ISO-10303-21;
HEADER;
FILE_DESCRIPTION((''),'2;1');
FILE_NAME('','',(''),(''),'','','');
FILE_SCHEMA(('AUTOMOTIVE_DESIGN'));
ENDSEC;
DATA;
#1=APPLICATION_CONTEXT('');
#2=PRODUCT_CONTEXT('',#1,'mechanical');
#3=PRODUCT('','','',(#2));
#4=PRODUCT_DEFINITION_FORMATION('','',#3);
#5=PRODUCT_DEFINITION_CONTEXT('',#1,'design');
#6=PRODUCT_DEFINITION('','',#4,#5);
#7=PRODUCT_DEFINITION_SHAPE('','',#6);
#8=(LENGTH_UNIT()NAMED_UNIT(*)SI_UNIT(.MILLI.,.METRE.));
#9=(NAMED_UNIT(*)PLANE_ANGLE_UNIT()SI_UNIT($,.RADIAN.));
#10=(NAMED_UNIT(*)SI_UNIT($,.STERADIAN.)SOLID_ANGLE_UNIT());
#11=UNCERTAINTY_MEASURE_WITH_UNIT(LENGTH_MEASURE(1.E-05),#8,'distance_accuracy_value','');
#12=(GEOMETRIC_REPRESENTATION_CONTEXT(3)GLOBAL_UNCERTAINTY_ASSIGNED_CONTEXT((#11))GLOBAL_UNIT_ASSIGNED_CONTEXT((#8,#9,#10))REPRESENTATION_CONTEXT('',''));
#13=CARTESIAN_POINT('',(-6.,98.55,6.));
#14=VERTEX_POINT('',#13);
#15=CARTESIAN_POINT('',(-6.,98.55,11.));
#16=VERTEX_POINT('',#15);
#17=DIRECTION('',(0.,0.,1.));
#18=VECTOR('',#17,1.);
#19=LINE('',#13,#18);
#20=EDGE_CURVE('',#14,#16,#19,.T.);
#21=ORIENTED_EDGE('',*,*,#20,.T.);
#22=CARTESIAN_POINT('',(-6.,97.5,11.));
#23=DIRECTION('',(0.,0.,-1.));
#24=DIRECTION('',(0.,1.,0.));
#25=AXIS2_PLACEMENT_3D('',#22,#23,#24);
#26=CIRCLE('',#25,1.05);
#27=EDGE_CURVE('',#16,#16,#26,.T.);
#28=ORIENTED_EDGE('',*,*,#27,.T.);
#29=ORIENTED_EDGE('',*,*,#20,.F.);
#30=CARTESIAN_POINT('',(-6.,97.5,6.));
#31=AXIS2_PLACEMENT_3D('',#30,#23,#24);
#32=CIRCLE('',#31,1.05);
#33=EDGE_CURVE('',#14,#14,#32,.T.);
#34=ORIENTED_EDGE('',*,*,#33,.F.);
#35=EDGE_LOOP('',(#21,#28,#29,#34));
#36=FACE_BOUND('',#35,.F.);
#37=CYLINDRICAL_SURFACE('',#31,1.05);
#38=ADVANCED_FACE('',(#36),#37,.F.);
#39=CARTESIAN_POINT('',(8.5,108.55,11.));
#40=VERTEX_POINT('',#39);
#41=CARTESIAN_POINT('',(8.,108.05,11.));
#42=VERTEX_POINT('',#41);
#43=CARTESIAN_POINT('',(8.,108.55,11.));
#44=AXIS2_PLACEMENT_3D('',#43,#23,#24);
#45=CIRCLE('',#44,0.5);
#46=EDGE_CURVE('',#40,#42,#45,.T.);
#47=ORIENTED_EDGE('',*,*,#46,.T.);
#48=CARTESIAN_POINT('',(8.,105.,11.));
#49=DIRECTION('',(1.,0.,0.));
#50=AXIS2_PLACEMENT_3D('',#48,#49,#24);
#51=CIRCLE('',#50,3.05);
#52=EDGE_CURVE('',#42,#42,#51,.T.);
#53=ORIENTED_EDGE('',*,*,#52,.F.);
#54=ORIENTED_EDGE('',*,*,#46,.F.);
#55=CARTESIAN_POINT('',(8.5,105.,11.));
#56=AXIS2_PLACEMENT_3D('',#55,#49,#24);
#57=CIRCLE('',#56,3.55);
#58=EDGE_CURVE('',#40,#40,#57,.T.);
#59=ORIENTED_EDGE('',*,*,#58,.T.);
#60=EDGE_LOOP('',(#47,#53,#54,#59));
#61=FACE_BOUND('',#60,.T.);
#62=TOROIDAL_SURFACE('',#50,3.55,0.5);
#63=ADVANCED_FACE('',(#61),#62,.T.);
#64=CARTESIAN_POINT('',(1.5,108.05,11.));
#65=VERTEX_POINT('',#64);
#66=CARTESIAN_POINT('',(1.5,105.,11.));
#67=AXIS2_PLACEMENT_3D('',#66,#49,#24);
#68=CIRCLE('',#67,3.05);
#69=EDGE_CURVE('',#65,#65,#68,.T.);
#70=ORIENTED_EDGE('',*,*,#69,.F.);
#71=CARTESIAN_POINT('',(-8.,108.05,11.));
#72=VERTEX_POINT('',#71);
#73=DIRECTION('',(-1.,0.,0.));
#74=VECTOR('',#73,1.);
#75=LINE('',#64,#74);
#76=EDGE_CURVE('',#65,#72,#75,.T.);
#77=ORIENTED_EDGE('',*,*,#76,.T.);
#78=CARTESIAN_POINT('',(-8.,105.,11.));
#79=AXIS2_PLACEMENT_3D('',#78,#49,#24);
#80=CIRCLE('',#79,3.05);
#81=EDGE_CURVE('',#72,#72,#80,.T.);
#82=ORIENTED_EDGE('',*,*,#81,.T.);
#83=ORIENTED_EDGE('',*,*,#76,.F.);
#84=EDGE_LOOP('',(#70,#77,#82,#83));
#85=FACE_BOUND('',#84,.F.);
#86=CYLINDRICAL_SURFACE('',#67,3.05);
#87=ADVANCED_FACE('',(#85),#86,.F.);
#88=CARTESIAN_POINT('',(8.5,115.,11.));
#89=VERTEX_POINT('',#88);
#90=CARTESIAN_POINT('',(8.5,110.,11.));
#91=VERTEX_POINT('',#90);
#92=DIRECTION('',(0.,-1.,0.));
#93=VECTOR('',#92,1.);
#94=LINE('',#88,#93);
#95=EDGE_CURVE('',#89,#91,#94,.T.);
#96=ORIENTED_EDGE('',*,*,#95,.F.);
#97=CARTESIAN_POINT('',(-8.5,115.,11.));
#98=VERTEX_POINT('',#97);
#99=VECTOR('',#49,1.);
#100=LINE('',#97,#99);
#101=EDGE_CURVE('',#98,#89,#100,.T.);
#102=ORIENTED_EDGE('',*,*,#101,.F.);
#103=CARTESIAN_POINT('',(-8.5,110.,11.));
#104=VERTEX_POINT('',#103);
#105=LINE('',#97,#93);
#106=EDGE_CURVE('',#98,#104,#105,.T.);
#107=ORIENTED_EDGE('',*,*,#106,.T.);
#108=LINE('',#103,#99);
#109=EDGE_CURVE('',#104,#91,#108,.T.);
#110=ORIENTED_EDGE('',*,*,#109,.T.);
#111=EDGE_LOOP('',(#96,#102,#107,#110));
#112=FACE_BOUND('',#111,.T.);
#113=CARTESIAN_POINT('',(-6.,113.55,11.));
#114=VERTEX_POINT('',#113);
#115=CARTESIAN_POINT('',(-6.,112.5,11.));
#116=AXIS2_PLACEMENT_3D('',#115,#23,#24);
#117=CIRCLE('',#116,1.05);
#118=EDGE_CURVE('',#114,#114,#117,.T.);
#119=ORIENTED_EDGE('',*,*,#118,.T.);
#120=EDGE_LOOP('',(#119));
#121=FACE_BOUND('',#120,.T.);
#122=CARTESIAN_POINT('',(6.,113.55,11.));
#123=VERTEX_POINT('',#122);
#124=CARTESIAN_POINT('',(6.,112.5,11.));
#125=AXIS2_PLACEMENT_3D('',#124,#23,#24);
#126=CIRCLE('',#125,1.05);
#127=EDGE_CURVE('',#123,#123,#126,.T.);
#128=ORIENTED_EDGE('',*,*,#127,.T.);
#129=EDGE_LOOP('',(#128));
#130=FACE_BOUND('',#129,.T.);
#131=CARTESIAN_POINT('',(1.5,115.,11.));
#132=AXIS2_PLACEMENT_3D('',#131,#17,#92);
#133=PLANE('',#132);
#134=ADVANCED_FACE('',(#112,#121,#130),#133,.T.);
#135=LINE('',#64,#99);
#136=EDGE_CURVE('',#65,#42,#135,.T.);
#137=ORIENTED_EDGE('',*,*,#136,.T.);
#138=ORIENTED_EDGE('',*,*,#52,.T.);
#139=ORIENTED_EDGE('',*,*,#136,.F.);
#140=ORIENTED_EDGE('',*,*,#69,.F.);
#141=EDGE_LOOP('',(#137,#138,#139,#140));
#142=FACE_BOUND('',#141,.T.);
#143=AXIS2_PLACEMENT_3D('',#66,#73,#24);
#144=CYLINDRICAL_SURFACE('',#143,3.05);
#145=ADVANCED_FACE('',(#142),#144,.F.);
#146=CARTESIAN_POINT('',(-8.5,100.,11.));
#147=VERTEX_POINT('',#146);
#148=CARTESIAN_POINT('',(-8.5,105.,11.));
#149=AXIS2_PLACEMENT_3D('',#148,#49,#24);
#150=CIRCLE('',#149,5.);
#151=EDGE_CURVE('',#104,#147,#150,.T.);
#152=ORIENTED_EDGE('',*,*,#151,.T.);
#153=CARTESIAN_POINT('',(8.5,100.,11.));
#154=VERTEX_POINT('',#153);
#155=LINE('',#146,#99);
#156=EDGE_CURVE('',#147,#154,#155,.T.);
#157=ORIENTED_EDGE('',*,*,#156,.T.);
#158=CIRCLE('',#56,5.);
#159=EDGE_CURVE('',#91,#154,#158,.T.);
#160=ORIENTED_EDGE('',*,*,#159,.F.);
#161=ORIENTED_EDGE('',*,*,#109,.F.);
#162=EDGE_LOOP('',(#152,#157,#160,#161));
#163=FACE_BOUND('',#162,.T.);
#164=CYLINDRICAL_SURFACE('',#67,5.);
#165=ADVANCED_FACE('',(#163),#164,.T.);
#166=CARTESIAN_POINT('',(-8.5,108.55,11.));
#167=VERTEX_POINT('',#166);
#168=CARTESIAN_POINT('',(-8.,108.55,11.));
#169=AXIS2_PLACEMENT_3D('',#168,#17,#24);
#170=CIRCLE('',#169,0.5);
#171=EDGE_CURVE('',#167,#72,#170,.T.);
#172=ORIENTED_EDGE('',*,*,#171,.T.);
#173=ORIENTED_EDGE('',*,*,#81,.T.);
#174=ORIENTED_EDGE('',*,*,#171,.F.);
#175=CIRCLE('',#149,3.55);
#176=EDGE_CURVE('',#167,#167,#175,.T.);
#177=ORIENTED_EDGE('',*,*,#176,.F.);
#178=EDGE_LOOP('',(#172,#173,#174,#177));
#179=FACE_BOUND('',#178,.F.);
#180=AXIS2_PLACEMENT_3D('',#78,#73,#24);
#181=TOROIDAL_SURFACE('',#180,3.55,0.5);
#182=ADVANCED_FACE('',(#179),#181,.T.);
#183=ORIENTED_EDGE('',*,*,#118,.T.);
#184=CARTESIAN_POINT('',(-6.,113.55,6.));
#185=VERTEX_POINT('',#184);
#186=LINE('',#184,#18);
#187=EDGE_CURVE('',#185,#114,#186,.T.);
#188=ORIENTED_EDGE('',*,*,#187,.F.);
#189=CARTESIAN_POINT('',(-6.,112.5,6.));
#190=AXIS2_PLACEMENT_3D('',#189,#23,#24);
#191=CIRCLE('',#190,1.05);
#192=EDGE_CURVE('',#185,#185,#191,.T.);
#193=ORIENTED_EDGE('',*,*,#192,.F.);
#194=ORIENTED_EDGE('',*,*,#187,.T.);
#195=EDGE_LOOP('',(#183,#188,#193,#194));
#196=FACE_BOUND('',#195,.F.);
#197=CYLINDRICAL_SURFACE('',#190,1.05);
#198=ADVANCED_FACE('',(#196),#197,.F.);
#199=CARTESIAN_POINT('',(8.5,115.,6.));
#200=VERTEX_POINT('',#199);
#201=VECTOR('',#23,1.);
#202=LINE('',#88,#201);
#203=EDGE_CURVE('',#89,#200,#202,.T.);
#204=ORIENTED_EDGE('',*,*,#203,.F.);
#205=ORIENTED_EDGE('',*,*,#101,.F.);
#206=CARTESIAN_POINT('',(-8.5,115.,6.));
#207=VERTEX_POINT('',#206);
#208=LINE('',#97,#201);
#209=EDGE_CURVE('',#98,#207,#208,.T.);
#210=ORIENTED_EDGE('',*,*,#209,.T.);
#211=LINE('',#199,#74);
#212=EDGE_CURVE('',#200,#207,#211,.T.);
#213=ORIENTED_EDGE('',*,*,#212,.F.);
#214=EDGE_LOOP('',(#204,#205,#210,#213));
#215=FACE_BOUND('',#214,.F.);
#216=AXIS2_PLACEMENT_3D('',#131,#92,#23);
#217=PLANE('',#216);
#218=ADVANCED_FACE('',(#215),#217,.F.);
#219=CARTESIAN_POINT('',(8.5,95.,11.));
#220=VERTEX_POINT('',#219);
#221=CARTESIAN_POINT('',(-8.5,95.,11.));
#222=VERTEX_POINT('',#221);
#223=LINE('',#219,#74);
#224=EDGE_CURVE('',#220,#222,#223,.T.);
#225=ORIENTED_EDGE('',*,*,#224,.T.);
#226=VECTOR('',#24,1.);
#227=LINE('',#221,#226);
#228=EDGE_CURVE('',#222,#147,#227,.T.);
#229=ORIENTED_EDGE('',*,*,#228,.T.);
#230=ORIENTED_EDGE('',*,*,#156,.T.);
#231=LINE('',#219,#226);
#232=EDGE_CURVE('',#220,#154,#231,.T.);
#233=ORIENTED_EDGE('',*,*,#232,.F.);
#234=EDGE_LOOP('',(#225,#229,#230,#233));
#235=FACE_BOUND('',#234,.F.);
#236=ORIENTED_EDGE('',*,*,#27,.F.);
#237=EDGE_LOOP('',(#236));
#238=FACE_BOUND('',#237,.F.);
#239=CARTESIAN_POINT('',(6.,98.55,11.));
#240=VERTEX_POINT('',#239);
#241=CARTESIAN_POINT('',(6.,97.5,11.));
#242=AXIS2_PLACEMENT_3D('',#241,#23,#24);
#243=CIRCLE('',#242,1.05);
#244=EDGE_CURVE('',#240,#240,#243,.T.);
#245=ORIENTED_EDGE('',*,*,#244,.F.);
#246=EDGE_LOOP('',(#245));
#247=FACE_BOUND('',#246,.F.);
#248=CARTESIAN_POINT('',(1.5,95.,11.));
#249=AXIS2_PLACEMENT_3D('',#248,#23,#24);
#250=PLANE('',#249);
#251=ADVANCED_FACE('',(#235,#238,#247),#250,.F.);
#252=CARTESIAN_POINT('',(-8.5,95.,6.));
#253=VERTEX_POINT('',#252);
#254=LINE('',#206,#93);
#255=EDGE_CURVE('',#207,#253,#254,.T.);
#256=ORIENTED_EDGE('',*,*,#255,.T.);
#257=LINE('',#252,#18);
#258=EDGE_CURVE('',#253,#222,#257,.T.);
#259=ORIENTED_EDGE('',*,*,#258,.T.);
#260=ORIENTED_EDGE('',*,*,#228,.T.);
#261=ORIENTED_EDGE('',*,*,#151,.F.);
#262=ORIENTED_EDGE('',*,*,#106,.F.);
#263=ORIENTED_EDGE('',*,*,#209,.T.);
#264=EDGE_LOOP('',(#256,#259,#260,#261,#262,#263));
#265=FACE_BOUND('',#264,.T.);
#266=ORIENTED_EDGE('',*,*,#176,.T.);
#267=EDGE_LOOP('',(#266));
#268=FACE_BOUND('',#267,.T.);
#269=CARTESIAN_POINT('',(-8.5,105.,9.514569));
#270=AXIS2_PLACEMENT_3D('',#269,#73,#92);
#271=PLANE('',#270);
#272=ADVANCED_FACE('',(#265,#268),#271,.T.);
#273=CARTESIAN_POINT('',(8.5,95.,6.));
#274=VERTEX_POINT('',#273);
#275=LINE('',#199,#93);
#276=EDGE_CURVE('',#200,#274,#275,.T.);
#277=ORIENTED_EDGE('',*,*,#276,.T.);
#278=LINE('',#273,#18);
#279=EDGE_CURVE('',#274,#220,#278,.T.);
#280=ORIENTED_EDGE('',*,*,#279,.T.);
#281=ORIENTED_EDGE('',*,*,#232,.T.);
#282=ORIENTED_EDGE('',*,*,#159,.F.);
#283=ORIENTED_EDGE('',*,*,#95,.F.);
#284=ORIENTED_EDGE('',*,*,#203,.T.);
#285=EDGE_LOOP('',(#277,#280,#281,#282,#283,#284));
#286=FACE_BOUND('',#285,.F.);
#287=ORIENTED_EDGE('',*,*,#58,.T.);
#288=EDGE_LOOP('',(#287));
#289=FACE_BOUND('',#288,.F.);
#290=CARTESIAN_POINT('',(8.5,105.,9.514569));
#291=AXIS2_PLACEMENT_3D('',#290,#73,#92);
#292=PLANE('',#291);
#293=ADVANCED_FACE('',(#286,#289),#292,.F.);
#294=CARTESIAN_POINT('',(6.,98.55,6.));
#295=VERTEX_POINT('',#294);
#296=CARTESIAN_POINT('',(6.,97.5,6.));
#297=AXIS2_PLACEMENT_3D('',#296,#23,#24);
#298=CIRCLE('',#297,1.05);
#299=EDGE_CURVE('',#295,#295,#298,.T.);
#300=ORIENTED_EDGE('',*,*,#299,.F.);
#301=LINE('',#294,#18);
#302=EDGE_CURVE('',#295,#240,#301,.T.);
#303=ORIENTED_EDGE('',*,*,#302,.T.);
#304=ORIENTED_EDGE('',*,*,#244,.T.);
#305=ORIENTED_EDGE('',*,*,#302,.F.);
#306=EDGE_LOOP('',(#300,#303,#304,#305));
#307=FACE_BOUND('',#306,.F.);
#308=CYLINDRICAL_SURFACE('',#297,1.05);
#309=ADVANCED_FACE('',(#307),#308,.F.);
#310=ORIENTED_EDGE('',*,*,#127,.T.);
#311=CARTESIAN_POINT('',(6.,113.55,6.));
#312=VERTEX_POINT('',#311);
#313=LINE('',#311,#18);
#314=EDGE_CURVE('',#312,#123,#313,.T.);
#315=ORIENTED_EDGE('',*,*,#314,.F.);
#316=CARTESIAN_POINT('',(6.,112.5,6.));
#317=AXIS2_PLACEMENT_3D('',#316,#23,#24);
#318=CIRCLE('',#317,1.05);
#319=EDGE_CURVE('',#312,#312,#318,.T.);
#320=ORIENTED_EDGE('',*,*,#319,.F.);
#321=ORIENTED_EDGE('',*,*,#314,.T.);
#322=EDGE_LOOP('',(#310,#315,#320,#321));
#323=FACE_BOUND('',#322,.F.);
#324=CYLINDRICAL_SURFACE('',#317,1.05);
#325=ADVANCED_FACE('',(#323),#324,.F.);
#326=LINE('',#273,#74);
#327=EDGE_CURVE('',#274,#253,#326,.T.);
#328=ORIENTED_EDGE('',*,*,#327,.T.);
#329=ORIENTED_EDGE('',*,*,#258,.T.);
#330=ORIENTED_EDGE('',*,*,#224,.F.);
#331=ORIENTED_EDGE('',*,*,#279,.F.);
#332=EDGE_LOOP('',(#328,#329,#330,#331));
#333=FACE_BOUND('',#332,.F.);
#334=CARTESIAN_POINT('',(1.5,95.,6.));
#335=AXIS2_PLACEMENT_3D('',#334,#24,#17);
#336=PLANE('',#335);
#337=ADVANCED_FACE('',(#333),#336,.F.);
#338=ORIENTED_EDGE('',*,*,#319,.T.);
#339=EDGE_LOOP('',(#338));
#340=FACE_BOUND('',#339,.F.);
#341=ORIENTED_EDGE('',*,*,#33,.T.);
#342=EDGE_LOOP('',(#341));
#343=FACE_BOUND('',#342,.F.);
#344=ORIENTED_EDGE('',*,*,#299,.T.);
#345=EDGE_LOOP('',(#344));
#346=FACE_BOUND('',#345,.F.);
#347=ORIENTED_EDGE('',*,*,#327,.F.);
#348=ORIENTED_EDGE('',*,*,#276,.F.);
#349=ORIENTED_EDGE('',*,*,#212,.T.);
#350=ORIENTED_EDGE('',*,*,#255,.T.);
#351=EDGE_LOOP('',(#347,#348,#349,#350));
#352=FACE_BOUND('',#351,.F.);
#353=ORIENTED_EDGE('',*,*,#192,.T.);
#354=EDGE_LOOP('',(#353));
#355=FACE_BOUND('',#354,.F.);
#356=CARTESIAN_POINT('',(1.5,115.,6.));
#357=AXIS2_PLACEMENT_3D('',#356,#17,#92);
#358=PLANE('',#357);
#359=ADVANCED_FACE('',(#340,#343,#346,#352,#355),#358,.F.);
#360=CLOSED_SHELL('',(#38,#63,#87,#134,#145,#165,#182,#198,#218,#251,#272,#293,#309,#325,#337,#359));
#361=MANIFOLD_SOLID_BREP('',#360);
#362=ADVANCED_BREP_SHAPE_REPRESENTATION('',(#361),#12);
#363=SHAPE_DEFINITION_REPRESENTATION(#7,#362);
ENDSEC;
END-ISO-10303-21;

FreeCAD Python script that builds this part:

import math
import FreeCAD as App
import Part
import Sketcher


def edges_at(feature, points):
    """Names of the edges that pass closest to the given points."""
    edges = feature.Shape.Edges
    near = lambda p: min(range(len(edges)), key=lambda i: edges[i].distToShape(Part.Vertex(*p))[0])
    return sorted({f"Edge{near(p) + 1}" for p in points})

doc = App.newDocument("Part")
body = doc.addObject("PartDesign::Body", "Body")

# Sketch on XZ plane
sketch1 = body.newObject("Sketcher::SketchObject", "Sketch")
sketch1.AttachmentSupport = (doc.getObject("XZ_Plane"), [""])
sketch1.MapMode = "FlatFace"
sketch1.addGeometry([
    Part.LineSegment(App.Vector(10, -5, 0), App.Vector(10, 0, 0)),  # 0
    Part.LineSegment(App.Vector(10, 0, 0), App.Vector(5, 0, 0)),  # 1
    Part.ArcOfCircle(Part.Circle(App.Vector(0, 0, 0), App.Vector(0, 0, 1), 5), math.radians(0), math.radians(180)),  # 2
    Part.LineSegment(App.Vector(-5, 0, 0), App.Vector(-10, 0, 0)),  # 3
    Part.LineSegment(App.Vector(-10, 0, 0), App.Vector(-10, -5, 0)),  # 4
    Part.LineSegment(App.Vector(-10, -5, 0), App.Vector(10, -5, 0)),  # 5
    Part.Circle(App.Vector(0, 0, 0), App.Vector(0, 0, 1), 3),  # 6
], False)
sketch1.addConstraint([
    Sketcher.Constraint("Coincident", 0, 2, 1, 1),
    Sketcher.Constraint("Coincident", 1, 2, 2, 1),
    Sketcher.Constraint("Coincident", 2, 2, 3, 1),
    Sketcher.Constraint("Coincident", 3, 2, 4, 1),
    Sketcher.Constraint("Coincident", 4, 2, 5, 1),
    Sketcher.Constraint("Coincident", 5, 2, 0, 1),
    Sketcher.Constraint("Vertical", 0),
    Sketcher.Constraint("Horizontal", 1),
    Sketcher.Constraint("Horizontal", 3),
    Sketcher.Constraint("Vertical", 4),
    Sketcher.Constraint("Horizontal", 5),
    Sketcher.Constraint("Coincident", 2, 3, -1, 1),
    Sketcher.Constraint("Coincident", 6, 3, -1, 1),
    Sketcher.Constraint("Symmetric", 0, 2, 3, 2, -1, 1),
    Sketcher.Constraint("PointOnObject", 0, 2, -1),
    Sketcher.Constraint("Equal", 3, 0),
    Sketcher.Constraint("Radius", 2, 5.0),
    Sketcher.Constraint("Diameter", 6, 6.1),
    Sketcher.Constraint("DistanceX", 1, 2, 1, 1, 5.0),
])
pad1 = body.newObject("PartDesign::Pad", "Pad")
pad1.Profile = sketch1
pad1.Type = "TwoLengths"
pad1.Length = 7
pad1.Length2 = 10

# Sketch on XY plane
sketch2 = body.newObject("Sketcher::SketchObject", "Sketch001")
sketch2.AttachmentSupport = (doc.getObject("XY_Plane"), [""])
sketch2.MapMode = "FlatFace"
sketch2.AttachmentOffset = App.Placement(App.Vector(0, 0, -5), App.Rotation())
sketch2.addGeometry([
    Part.Circle(App.Vector(-7.5, -4.5, 0), App.Vector(0, 0, 1), 1.1),
    Part.Circle(App.Vector(-7.5, 7.5, 0), App.Vector(0, 0, 1), 1.1),
    Part.Circle(App.Vector(7.5, 7.5, 0), App.Vector(0, 0, 1), 1.1),
    Part.Circle(App.Vector(7.5, -4.5, 0), App.Vector(0, 0, 1), 1.1),
], False)
sketch2.addConstraint([
    Sketcher.Constraint("Equal", 0, 1),
    Sketcher.Constraint("Equal", 1, 2),
    Sketcher.Constraint("Equal", 2, 3),
    Sketcher.Constraint("Symmetric", 1, 3, 2, 3, -2),
    Sketcher.Constraint("Symmetric", 0, 3, 3, 3, -2),
    Sketcher.Constraint("Vertical", 0, 3, 1, 3),
    Sketcher.Constraint("Diameter", 0, 2.1),
    Sketcher.Constraint("DistanceY", 0, 3, 1, 3, 12.0),
    Sketcher.Constraint("DistanceX", 1, 3, 2, 3, 15.0),
    Sketcher.Constraint("DistanceY", 0, 3, -1, 1, 4.5),
])
pocket1 = body.newObject("PartDesign::Pocket", "Pocket")
pocket1.Profile = sketch2
pocket1.Length = 5
pocket1.Reversed = True
doc.recompute()

fillet = body.newObject("PartDesign::Fillet", "Fillet")
fillet.Base = (pocket1, edges_at(pocket1, [(-3.05, 10, 0), (-3.05, -7, 0)]))
fillet.Radius = 0.5
body2 = doc.addObject("PartDesign::Body", "Body001")
doc.recompute()

body.Placement = App.Placement(App.Vector(1.5, 105, 11), App.Rotation(App.Vector(0, 0, 1), 90))
boolean = body2.newObject("PartDesign::Boolean", "Boolean")
boolean.Type = "Fuse"
boolean.addObjects([body])

doc.recompute()
